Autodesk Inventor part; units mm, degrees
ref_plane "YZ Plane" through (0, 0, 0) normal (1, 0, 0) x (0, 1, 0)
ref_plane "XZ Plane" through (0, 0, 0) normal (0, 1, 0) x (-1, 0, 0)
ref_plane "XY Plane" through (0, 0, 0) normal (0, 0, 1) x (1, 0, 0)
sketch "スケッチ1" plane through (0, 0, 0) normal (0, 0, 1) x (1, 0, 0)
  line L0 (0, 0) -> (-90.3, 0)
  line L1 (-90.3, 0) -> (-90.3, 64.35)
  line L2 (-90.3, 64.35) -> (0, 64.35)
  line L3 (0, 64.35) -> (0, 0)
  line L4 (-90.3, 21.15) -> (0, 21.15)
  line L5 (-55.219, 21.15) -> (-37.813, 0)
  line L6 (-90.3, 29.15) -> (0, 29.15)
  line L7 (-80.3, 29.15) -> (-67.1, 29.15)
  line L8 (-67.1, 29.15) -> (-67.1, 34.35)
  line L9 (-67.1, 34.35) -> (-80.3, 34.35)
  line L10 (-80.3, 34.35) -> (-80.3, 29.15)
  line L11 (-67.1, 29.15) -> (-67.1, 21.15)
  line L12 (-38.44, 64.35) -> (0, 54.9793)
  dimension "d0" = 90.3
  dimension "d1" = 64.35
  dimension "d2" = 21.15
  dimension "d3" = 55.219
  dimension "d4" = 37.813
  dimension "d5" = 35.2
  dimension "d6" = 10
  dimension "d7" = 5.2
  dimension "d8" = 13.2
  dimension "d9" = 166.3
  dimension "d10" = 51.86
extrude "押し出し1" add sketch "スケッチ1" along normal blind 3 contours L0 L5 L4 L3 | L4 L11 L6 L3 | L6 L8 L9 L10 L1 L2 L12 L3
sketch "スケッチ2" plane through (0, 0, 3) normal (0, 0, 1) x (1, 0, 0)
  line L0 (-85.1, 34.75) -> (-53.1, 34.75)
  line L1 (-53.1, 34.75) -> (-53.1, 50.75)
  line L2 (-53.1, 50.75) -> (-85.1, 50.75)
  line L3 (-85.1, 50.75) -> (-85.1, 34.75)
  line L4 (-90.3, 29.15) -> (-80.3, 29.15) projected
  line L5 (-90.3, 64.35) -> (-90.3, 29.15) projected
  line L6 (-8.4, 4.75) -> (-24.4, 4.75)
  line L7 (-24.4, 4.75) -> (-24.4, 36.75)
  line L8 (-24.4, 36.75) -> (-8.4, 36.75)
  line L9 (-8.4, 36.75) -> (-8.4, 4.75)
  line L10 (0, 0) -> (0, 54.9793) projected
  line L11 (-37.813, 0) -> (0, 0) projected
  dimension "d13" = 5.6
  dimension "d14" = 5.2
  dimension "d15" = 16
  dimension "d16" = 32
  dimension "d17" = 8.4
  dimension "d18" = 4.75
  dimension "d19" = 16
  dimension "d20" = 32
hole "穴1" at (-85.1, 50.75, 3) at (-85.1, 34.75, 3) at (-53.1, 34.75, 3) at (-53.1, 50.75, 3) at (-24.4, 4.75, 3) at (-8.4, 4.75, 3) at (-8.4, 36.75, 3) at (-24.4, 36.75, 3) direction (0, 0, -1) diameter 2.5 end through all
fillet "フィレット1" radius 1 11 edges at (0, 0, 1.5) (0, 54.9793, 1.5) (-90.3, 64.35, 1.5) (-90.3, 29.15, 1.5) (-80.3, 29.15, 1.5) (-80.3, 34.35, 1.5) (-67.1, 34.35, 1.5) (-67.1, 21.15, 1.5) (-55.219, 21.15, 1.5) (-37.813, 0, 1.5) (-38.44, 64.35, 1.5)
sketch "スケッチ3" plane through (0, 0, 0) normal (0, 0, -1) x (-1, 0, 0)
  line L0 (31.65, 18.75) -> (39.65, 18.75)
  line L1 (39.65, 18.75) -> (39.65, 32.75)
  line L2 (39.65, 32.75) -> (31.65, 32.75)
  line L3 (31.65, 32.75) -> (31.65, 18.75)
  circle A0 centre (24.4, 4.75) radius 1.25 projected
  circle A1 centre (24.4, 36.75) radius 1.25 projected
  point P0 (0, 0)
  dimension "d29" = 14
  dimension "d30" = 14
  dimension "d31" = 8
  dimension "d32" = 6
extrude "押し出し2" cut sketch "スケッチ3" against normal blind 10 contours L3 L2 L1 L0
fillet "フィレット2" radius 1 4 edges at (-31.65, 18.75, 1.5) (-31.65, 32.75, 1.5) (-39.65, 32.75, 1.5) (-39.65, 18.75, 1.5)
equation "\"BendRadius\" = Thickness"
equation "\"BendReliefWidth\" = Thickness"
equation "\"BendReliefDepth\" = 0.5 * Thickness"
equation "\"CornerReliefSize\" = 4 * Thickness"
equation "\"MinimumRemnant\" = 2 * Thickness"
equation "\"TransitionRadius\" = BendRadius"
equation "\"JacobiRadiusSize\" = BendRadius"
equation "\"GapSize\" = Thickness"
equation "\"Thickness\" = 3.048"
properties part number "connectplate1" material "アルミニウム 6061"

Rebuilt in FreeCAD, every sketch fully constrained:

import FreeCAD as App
import Part
import Sketcher

V = App.Vector
Q = App.Units.Quantity


def edges_at(feature, points):
    """Names of the edges that pass closest to the given points."""
    edges = feature.Shape.Edges
    near = lambda p: min(range(len(edges)), key=lambda i: edges[i].distToShape(Part.Vertex(*p))[0])
    return sorted({f"Edge{near(p) + 1}" for p in points})

doc = App.newDocument("Part")
body = doc.addObject("PartDesign::Body", "Body")

sketch1 = doc.addObject("Sketcher::SketchObject", "Sketch")
body.addObject(sketch1)
sketch1.AttachmentSupport = (doc.XY_Plane, [""])
sketch1.MapMode = "FlatFace"
sketch1.addGeometry(Part.LineSegment(V(-38, 0, 0), V(0, 0, 0)), False)
sketch1.addGeometry(Part.LineSegment(V(0, 0, 0), V(0, 55, 0)), False)
sketch1.addGeometry(Part.LineSegment(V(0, 55, 0), V(-38, 64, 0)), False)
sketch1.addGeometry(Part.LineSegment(V(-38, 64, 0), V(-90, 64, 0)), False)
sketch1.addGeometry(Part.LineSegment(V(-90, 64, 0), V(-90, 29, 0)), False)
sketch1.addGeometry(Part.LineSegment(V(-90, 29, 0), V(-80, 29, 0)), False)
sketch1.addGeometry(Part.LineSegment(V(-80, 29, 0), V(-80, 34, 0)), False)
sketch1.addGeometry(Part.LineSegment(V(-80, 34, 0), V(-67, 34, 0)), False)
sketch1.addGeometry(Part.LineSegment(V(-67, 34, 0), V(-67, 21, 0)), False)
sketch1.addGeometry(Part.LineSegment(V(-67, 21, 0), V(-55, 21, 0)), False)
sketch1.addGeometry(Part.LineSegment(V(-55, 21, 0), V(-38, 0, 0)), False)
sketch1.addConstraint(Sketcher.Constraint("Coincident", 0, 2, 1, 1))
sketch1.addConstraint(Sketcher.Constraint("Coincident", 1, 2, 2, 1))
sketch1.addConstraint(Sketcher.Constraint("Coincident", 2, 2, 3, 1))
sketch1.addConstraint(Sketcher.Constraint("Coincident", 3, 2, 4, 1))
sketch1.addConstraint(Sketcher.Constraint("Coincident", 4, 2, 5, 1))
sketch1.addConstraint(Sketcher.Constraint("Coincident", 5, 2, 6, 1))
sketch1.addConstraint(Sketcher.Constraint("Coincident", 6, 2, 7, 1))
sketch1.addConstraint(Sketcher.Constraint("Coincident", 7, 2, 8, 1))
sketch1.addConstraint(Sketcher.Constraint("Coincident", 8, 2, 9, 1))
sketch1.addConstraint(Sketcher.Constraint("Coincident", 9, 2, 10, 1))
sketch1.addConstraint(Sketcher.Constraint("Coincident", 10, 2, 0, 1))
sketch1.addConstraint(Sketcher.Constraint("Horizontal", 0))
sketch1.addConstraint(Sketcher.Constraint("Vertical", 1))
sketch1.addConstraint(Sketcher.Constraint("Horizontal", 3))
sketch1.addConstraint(Sketcher.Constraint("Vertical", 4))
sketch1.addConstraint(Sketcher.Constraint("Horizontal", 5))
sketch1.addConstraint(Sketcher.Constraint("Vertical", 6))
sketch1.addConstraint(Sketcher.Constraint("Horizontal", 7))
sketch1.addConstraint(Sketcher.Constraint("Vertical", 8))
sketch1.addConstraint(Sketcher.Constraint("Horizontal", 9))
sketch1.addConstraint(Sketcher.Constraint("Coincident", 0, 2, -1, 1))
sketch1.addConstraint(Sketcher.Constraint("Equal", 7, 8))
sketch1.addConstraint(Sketcher.Constraint("DistanceX", 5, 1, 5, 2, Q("10 mm")))
sketch1.addConstraint(Sketcher.Constraint("DistanceX", 7, 1, 7, 2, Q("13.2 mm")))
sketch1.addConstraint(Sketcher.Constraint("DistanceY", 4, 2, 4, 1, Q("35.2 mm")))
sketch1.addConstraint(Sketcher.Constraint("DistanceY", 6, 1, 6, 2, Q("5.2 mm")))
sketch1.addConstraint(Sketcher.Constraint("Angle", 2, Q("166.3 deg")))
sketch1.addConstraint(Sketcher.Constraint("DistanceX", 3, 2, 3, 1, Q("51.86 mm")))
sketch1.addConstraint(Sketcher.Constraint("DistanceX", 3, 2, -1, 1, Q("90.3 mm")))
sketch1.addConstraint(Sketcher.Constraint("DistanceX", 0, 1, 0, 2, Q("37.813 mm")))
sketch1.addConstraint(Sketcher.Constraint("DistanceY", -1, 1, 2, 2, Q("64.35 mm")))
sketch1.addConstraint(Sketcher.Constraint("DistanceX", 9, 2, -1, 1, Q("55.219 mm")))
pad1 = doc.addObject("PartDesign::Pad", "Pad")
body.addObject(pad1)
pad1.Profile = sketch1
pad1.Length = 3

sketch2 = doc.addObject("Sketcher::SketchObject", "Sketch001")
body.addObject(sketch2)
sketch2.AttachmentSupport = (doc.XY_Plane, [""])
sketch2.MapMode = "FlatFace"
sketch2.AttachmentOffset = App.Placement(V(0, 0, 3), App.Rotation())
sketch2.addGeometry(Part.Circle(V(-85.1, 50.8, 0), V(0, 0, 1), 1.2), False)
sketch2.addGeometry(Part.Circle(V(-85.1, 34.8, 0), V(0, 0, 1), 1.2), False)
sketch2.addGeometry(Part.Circle(V(-53.1, 34.8, 0), V(0, 0, 1), 1.2), False)
sketch2.addGeometry(Part.Circle(V(-53.1, 50.8, 0), V(0, 0, 1), 1.2), False)
sketch2.addGeometry(Part.Circle(V(-24.4, 4.8, 0), V(0, 0, 1), 1.2), False)
sketch2.addGeometry(Part.Circle(V(-8.4, 4.8, 0), V(0, 0, 1), 1.2), False)
sketch2.addGeometry(Part.Circle(V(-8.4, 36.8, 0), V(0, 0, 1), 1.2), False)
sketch2.addGeometry(Part.Circle(V(-24.4, 36.8, 0), V(0, 0, 1), 1.2), False)
sketch2.addConstraint(Sketcher.Constraint("Equal", 0, 1))
sketch2.addConstraint(Sketcher.Constraint("Equal", 1, 2))
sketch2.addConstraint(Sketcher.Constraint("Equal", 2, 3))
sketch2.addConstraint(Sketcher.Constraint("Equal", 3, 4))
sketch2.addConstraint(Sketcher.Constraint("Equal", 4, 5))
sketch2.addConstraint(Sketcher.Constraint("Equal", 5, 6))
sketch2.addConstraint(Sketcher.Constraint("Equal", 6, 7))
sketch2.addConstraint(Sketcher.Constraint("Horizontal", 1, 3, 2, 3))
sketch2.addConstraint(Sketcher.Constraint("Horizontal", 0, 3, 3, 3))
sketch2.addConstraint(Sketcher.Constraint("Horizontal", 4, 3, 5, 3))
sketch2.addConstraint(Sketcher.Constraint("Horizontal", 6, 3, 7, 3))
sketch2.addConstraint(Sketcher.Constraint("Vertical", 0, 3, 1, 3))
sketch2.addConstraint(Sketcher.Constraint("Vertical", 2, 3, 3, 3))
sketch2.addConstraint(Sketcher.Constraint("Vertical", 5, 3, 6, 3))
sketch2.addConstraint(Sketcher.Constraint("Vertical", 4, 3, 7, 3))
sketch2.addConstraint(Sketcher.Constraint("Diameter", 0, Q("2.5 mm")))
sketch2.addConstraint(Sketcher.Constraint("DistanceY", 1, 3, 0, 3, Q("16 mm")))
sketch2.addConstraint(Sketcher.Constraint("DistanceX", 1, 3, 2, 3, Q("32 mm")))
sketch2.addConstraint(Sketcher.Constraint("DistanceY", 4, 3, 2, 3, Q("30 mm")))
sketch2.addConstraint(Sketcher.Constraint("DistanceX", 4, 3, 5, 3, Q("16 mm")))
sketch2.addConstraint(Sketcher.Constraint("DistanceY", 5, 3, 6, 3, Q("32 mm")))
sketch2.addConstraint(Sketcher.Constraint("DistanceX", 0, 3, -1, 1, Q("85.1 mm")))
sketch2.addConstraint(Sketcher.Constraint("DistanceX", 4, 3, -1, 1, Q("24.4 mm")))
sketch2.addConstraint(Sketcher.Constraint("DistanceY", -1, 1, 0, 3, Q("50.75 mm")))
doc.recompute()
hole = doc.addObject("PartDesign::Hole", "Hole")
body.addObject(hole)
hole.Profile = sketch2
hole.ThreadType = "None"
hole.Diameter = 2.5
hole.DepthType = "ThroughAll"
doc.recompute()

fillet = doc.addObject("PartDesign::Fillet", "Fillet")
body.addObject(fillet)
fillet.Base = (hole, edges_at(hole, [
    (0, 0, 1.5),
    (0, 54.979, 1.5),
    (-90.3, 64.35, 1.5),
    (-90.3, 29.15, 1.5),
    (-80.3, 29.15, 1.5),
    (-80.3, 34.35, 1.5),
    (-67.1, 34.35, 1.5),
    (-67.1, 21.15, 1.5),
    (-55.219, 21.15, 1.5),
    (-37.813, 0, 1.5),
    (-38.44, 64.35, 1.5),
]))
fillet.Radius = 1

sketch3 = doc.addObject("Sketcher::SketchObject", "Sketch002")
body.addObject(sketch3)
sketch3.AttachmentSupport = (doc.XY_Plane, [""])
sketch3.MapMode = "FlatFace"
sketch3.addGeometry(Part.LineSegment(V(-32, 33, 0), V(-32, 19, 0)), False)
sketch3.addGeometry(Part.LineSegment(V(-32, 19, 0), V(-40, 19, 0)), False)
sketch3.addGeometry(Part.LineSegment(V(-40, 19, 0), V(-40, 33, 0)), False)
sketch3.addGeometry(Part.LineSegment(V(-40, 33, 0), V(-32, 33, 0)), False)
sketch3.addConstraint(Sketcher.Constraint("Coincident", 0, 2, 1, 1))
sketch3.addConstraint(Sketcher.Constraint("Coincident", 1, 2, 2, 1))
sketch3.addConstraint(Sketcher.Constraint("Coincident", 2, 2, 3, 1))
sketch3.addConstraint(Sketcher.Constraint("Coincident", 3, 2, 0, 1))
sketch3.addConstraint(Sketcher.Constraint("Vertical", 0))
sketch3.addConstraint(Sketcher.Constraint("Horizontal", 1))
sketch3.addConstraint(Sketcher.Constraint("Vertical", 2))
sketch3.addConstraint(Sketcher.Constraint("Horizontal", 3))
sketch3.addConstraint(Sketcher.Constraint("DistanceX", 1, 2, 1, 1, Q("8 mm")))
sketch3.addConstraint(Sketcher.Constraint("DistanceY", 0, 2, 0, 1, Q("14 mm")))
sketch3.addConstraint(Sketcher.Constraint("DistanceX", 0, 2, -1, 1, Q("31.65 mm")))
sketch3.addConstraint(Sketcher.Constraint("DistanceY", -1, 1, 0, 2, Q("18.75 mm")))
pocket1 = doc.addObject("PartDesign::Pocket", "Pocket")
body.addObject(pocket1)
pocket1.Profile = sketch3
pocket1.Length = 10
pocket1.Reversed = True
doc.recompute()

fillet2 = doc.addObject("PartDesign::Fillet", "Fillet001")
body.addObject(fillet2)
fillet2.Base = (pocket1, edges_at(pocket1, [
    (-31.65, 18.75, 1.5),
    (-31.65, 32.75, 1.5),
    (-39.65, 32.75, 1.5),
    (-39.65, 18.75, 1.5),
]))
fillet2.Radius = 1

doc.recompute()
